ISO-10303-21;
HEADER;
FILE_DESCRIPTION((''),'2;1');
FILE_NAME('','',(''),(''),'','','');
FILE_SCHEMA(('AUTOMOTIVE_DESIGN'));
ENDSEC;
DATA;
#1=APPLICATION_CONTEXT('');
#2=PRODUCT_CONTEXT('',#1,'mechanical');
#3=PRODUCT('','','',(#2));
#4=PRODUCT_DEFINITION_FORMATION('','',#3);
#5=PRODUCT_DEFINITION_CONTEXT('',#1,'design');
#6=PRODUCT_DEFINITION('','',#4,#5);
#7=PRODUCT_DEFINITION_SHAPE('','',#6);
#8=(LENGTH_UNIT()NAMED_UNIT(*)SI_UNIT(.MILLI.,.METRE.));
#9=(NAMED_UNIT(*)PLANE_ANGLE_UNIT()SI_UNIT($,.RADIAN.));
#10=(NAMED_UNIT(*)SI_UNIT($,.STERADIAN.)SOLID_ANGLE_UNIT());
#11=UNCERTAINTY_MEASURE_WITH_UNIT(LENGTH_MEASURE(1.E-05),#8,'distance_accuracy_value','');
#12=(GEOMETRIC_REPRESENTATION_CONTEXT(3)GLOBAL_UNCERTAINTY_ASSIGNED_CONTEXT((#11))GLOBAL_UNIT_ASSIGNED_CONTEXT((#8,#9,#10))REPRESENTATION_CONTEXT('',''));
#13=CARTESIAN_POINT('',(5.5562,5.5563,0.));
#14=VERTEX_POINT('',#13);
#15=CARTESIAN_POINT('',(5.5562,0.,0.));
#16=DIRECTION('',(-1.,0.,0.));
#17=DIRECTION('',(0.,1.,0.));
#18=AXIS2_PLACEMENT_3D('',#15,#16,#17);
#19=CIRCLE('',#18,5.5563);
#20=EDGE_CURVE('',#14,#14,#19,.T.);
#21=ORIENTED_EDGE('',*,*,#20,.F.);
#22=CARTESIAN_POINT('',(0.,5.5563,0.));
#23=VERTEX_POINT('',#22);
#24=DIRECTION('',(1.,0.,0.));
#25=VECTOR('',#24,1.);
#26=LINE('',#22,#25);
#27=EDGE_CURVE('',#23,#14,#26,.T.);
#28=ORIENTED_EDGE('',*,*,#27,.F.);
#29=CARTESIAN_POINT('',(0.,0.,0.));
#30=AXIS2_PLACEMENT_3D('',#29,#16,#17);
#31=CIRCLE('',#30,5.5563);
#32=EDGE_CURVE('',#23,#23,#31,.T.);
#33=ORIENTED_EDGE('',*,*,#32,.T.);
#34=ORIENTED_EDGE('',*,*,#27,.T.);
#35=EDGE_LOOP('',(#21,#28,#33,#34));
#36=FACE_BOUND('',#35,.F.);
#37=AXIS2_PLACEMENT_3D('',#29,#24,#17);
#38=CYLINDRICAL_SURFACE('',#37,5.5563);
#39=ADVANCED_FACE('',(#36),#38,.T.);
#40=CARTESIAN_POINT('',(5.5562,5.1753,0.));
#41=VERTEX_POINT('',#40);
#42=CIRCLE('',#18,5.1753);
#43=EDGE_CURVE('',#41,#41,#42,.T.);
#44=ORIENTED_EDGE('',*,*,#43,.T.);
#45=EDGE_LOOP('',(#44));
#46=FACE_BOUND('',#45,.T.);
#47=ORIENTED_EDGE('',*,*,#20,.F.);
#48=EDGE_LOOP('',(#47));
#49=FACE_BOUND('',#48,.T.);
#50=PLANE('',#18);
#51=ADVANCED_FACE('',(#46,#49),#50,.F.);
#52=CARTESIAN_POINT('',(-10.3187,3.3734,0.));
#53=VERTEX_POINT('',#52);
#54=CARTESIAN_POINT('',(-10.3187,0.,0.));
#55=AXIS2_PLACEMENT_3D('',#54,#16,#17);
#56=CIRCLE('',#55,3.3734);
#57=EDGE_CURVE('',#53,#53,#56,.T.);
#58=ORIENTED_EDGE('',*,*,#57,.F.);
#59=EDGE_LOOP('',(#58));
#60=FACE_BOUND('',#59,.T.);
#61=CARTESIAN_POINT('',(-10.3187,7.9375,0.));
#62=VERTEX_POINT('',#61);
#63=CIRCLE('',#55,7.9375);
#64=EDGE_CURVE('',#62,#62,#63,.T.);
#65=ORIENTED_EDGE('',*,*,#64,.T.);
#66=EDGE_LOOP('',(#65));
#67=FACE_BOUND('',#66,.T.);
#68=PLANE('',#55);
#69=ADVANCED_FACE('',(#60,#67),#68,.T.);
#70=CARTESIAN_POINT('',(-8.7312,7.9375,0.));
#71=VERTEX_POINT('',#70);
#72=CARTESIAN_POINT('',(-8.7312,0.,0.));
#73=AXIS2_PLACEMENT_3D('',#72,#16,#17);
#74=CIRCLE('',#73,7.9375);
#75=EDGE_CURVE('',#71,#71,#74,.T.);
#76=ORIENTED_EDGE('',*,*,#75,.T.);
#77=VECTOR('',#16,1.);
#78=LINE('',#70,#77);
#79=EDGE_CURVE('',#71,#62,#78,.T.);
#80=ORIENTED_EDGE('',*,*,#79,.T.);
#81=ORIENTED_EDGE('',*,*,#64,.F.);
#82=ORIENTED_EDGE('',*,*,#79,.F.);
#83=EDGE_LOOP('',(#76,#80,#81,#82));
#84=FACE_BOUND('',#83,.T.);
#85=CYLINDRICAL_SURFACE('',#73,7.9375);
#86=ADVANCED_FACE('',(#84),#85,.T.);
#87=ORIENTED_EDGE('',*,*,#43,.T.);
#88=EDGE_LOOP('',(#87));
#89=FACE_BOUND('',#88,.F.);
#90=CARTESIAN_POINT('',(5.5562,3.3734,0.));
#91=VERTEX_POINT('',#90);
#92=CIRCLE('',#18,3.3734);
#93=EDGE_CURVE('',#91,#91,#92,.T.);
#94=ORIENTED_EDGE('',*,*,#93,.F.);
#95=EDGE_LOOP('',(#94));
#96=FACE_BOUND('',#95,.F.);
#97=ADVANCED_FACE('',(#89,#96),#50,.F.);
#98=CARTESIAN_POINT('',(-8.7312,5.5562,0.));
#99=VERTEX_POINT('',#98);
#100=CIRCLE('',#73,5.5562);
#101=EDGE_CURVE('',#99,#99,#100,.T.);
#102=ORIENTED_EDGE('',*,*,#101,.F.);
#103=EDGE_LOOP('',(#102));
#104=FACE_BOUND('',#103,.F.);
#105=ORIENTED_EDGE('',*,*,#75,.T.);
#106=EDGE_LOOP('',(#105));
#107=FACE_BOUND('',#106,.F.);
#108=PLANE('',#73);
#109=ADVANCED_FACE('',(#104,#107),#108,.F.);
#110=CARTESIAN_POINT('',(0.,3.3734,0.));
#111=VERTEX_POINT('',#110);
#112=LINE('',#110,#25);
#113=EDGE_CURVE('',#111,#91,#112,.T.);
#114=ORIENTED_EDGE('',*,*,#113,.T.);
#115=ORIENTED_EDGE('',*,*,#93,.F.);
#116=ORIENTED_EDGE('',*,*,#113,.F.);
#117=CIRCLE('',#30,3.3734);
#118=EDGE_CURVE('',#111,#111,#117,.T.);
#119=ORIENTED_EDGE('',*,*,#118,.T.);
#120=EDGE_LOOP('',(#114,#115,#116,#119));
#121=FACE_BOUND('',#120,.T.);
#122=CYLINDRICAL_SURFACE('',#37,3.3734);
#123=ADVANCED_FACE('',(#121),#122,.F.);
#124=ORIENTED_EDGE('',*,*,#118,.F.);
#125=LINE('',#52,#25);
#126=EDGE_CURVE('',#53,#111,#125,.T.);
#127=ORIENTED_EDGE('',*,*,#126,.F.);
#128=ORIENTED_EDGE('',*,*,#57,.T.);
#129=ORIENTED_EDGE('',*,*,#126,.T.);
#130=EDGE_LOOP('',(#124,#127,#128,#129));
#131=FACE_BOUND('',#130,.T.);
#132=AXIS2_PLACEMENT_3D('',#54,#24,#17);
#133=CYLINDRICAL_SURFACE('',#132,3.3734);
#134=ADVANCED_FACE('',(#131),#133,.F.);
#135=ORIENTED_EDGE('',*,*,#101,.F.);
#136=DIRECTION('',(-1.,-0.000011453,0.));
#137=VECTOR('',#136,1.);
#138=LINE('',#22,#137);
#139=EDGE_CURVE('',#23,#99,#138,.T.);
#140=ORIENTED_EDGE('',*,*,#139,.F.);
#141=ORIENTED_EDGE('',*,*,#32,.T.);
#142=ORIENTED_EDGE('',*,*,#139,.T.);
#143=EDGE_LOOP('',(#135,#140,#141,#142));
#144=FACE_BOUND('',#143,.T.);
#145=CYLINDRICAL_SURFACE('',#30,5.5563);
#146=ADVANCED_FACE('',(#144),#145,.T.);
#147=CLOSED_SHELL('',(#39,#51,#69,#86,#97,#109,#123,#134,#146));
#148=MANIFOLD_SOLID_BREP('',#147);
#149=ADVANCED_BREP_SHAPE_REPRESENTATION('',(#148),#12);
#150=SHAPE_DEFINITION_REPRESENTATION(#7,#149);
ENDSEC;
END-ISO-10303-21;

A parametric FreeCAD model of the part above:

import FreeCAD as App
import Part
import Sketcher
Q = App.Units.Quantity

doc = App.newDocument("Part")
body = doc.addObject("PartDesign::Body", "Body")

# Sketch on XY plane
sketch1 = body.newObject("Sketcher::SketchObject", "Sketch")
sketch1.AttachmentSupport = (doc.getObject("XY_Plane"), [""])
sketch1.MapMode = "FlatFace"
sketch1.addGeometry([
    Part.LineSegment(App.Vector(-10.3187, 3.3734, 0), App.Vector(5.5562, 3.3734, 0)),  # 0
    Part.LineSegment(App.Vector(5.5562, 3.3734, 0), App.Vector(5.5562, 5.5563, 0)),  # 1
    Part.LineSegment(App.Vector(5.5562, 5.5563, 0), App.Vector(0, 5.5563, 0)),  # 2
    Part.LineSegment(App.Vector(0, 5.5563, 0), App.Vector(-8.7312, 5.5562, 0)),  # 3
    Part.LineSegment(App.Vector(-8.7312, 5.5562, 0), App.Vector(-8.7312, 7.9375, 0)),  # 4
    Part.LineSegment(App.Vector(-8.7312, 7.9375, 0), App.Vector(-10.3187, 7.9375, 0)),  # 5
    Part.LineSegment(App.Vector(-10.3187, 7.9375, 0), App.Vector(-10.3187, 3.3734, 0)),  # 6
], False)
sketch1.addConstraint([
    Sketcher.Constraint("Coincident", 0, 2, 1, 1),
    Sketcher.Constraint("Coincident", 1, 2, 2, 1),
    Sketcher.Constraint("Coincident", 2, 2, 3, 1),
    Sketcher.Constraint("Coincident", 3, 2, 4, 1),
    Sketcher.Constraint("Coincident", 4, 2, 5, 1),
    Sketcher.Constraint("Coincident", 5, 2, 6, 1),
    Sketcher.Constraint("Coincident", 6, 2, 0, 1),
    Sketcher.Constraint("Horizontal", 0),
    Sketcher.Constraint("Vertical", 1),
    Sketcher.Constraint("Horizontal", 2),
    Sketcher.Constraint("Horizontal", 3),
    Sketcher.Constraint("Vertical", 4),
    Sketcher.Constraint("Horizontal", 5),
    Sketcher.Constraint("Vertical", 6),
    Sketcher.Constraint("PointOnObject", 2, 2, -2),
    Sketcher.Constraint("DistanceX", 2, 2, 2, 1, Q("0.218748 in")),
    Sketcher.Constraint("DistanceX", 3, 2, 3, 1, Q("0.343748 in")),
    Sketcher.Constraint("DistanceX", 5, 2, 5, 1, Q("0.0625 in")),
    Sketcher.Constraint("DistanceY", -1, 1, 1, 2, Q("0.218752 in")),
    Sketcher.Constraint("DistanceY", -1, 1, 4, 2, Q("0.3125 in")),
    Sketcher.Constraint("DistanceY", -1, 1, 0, 2, Q("0.1328 in")),
])
revolution = body.newObject("PartDesign::Revolution", "Revolution")
revolution.Profile = sketch1
revolution.ReferenceAxis = (sketch1, ["H_Axis"])
revolution.Angle = 360

doc.recompute()
